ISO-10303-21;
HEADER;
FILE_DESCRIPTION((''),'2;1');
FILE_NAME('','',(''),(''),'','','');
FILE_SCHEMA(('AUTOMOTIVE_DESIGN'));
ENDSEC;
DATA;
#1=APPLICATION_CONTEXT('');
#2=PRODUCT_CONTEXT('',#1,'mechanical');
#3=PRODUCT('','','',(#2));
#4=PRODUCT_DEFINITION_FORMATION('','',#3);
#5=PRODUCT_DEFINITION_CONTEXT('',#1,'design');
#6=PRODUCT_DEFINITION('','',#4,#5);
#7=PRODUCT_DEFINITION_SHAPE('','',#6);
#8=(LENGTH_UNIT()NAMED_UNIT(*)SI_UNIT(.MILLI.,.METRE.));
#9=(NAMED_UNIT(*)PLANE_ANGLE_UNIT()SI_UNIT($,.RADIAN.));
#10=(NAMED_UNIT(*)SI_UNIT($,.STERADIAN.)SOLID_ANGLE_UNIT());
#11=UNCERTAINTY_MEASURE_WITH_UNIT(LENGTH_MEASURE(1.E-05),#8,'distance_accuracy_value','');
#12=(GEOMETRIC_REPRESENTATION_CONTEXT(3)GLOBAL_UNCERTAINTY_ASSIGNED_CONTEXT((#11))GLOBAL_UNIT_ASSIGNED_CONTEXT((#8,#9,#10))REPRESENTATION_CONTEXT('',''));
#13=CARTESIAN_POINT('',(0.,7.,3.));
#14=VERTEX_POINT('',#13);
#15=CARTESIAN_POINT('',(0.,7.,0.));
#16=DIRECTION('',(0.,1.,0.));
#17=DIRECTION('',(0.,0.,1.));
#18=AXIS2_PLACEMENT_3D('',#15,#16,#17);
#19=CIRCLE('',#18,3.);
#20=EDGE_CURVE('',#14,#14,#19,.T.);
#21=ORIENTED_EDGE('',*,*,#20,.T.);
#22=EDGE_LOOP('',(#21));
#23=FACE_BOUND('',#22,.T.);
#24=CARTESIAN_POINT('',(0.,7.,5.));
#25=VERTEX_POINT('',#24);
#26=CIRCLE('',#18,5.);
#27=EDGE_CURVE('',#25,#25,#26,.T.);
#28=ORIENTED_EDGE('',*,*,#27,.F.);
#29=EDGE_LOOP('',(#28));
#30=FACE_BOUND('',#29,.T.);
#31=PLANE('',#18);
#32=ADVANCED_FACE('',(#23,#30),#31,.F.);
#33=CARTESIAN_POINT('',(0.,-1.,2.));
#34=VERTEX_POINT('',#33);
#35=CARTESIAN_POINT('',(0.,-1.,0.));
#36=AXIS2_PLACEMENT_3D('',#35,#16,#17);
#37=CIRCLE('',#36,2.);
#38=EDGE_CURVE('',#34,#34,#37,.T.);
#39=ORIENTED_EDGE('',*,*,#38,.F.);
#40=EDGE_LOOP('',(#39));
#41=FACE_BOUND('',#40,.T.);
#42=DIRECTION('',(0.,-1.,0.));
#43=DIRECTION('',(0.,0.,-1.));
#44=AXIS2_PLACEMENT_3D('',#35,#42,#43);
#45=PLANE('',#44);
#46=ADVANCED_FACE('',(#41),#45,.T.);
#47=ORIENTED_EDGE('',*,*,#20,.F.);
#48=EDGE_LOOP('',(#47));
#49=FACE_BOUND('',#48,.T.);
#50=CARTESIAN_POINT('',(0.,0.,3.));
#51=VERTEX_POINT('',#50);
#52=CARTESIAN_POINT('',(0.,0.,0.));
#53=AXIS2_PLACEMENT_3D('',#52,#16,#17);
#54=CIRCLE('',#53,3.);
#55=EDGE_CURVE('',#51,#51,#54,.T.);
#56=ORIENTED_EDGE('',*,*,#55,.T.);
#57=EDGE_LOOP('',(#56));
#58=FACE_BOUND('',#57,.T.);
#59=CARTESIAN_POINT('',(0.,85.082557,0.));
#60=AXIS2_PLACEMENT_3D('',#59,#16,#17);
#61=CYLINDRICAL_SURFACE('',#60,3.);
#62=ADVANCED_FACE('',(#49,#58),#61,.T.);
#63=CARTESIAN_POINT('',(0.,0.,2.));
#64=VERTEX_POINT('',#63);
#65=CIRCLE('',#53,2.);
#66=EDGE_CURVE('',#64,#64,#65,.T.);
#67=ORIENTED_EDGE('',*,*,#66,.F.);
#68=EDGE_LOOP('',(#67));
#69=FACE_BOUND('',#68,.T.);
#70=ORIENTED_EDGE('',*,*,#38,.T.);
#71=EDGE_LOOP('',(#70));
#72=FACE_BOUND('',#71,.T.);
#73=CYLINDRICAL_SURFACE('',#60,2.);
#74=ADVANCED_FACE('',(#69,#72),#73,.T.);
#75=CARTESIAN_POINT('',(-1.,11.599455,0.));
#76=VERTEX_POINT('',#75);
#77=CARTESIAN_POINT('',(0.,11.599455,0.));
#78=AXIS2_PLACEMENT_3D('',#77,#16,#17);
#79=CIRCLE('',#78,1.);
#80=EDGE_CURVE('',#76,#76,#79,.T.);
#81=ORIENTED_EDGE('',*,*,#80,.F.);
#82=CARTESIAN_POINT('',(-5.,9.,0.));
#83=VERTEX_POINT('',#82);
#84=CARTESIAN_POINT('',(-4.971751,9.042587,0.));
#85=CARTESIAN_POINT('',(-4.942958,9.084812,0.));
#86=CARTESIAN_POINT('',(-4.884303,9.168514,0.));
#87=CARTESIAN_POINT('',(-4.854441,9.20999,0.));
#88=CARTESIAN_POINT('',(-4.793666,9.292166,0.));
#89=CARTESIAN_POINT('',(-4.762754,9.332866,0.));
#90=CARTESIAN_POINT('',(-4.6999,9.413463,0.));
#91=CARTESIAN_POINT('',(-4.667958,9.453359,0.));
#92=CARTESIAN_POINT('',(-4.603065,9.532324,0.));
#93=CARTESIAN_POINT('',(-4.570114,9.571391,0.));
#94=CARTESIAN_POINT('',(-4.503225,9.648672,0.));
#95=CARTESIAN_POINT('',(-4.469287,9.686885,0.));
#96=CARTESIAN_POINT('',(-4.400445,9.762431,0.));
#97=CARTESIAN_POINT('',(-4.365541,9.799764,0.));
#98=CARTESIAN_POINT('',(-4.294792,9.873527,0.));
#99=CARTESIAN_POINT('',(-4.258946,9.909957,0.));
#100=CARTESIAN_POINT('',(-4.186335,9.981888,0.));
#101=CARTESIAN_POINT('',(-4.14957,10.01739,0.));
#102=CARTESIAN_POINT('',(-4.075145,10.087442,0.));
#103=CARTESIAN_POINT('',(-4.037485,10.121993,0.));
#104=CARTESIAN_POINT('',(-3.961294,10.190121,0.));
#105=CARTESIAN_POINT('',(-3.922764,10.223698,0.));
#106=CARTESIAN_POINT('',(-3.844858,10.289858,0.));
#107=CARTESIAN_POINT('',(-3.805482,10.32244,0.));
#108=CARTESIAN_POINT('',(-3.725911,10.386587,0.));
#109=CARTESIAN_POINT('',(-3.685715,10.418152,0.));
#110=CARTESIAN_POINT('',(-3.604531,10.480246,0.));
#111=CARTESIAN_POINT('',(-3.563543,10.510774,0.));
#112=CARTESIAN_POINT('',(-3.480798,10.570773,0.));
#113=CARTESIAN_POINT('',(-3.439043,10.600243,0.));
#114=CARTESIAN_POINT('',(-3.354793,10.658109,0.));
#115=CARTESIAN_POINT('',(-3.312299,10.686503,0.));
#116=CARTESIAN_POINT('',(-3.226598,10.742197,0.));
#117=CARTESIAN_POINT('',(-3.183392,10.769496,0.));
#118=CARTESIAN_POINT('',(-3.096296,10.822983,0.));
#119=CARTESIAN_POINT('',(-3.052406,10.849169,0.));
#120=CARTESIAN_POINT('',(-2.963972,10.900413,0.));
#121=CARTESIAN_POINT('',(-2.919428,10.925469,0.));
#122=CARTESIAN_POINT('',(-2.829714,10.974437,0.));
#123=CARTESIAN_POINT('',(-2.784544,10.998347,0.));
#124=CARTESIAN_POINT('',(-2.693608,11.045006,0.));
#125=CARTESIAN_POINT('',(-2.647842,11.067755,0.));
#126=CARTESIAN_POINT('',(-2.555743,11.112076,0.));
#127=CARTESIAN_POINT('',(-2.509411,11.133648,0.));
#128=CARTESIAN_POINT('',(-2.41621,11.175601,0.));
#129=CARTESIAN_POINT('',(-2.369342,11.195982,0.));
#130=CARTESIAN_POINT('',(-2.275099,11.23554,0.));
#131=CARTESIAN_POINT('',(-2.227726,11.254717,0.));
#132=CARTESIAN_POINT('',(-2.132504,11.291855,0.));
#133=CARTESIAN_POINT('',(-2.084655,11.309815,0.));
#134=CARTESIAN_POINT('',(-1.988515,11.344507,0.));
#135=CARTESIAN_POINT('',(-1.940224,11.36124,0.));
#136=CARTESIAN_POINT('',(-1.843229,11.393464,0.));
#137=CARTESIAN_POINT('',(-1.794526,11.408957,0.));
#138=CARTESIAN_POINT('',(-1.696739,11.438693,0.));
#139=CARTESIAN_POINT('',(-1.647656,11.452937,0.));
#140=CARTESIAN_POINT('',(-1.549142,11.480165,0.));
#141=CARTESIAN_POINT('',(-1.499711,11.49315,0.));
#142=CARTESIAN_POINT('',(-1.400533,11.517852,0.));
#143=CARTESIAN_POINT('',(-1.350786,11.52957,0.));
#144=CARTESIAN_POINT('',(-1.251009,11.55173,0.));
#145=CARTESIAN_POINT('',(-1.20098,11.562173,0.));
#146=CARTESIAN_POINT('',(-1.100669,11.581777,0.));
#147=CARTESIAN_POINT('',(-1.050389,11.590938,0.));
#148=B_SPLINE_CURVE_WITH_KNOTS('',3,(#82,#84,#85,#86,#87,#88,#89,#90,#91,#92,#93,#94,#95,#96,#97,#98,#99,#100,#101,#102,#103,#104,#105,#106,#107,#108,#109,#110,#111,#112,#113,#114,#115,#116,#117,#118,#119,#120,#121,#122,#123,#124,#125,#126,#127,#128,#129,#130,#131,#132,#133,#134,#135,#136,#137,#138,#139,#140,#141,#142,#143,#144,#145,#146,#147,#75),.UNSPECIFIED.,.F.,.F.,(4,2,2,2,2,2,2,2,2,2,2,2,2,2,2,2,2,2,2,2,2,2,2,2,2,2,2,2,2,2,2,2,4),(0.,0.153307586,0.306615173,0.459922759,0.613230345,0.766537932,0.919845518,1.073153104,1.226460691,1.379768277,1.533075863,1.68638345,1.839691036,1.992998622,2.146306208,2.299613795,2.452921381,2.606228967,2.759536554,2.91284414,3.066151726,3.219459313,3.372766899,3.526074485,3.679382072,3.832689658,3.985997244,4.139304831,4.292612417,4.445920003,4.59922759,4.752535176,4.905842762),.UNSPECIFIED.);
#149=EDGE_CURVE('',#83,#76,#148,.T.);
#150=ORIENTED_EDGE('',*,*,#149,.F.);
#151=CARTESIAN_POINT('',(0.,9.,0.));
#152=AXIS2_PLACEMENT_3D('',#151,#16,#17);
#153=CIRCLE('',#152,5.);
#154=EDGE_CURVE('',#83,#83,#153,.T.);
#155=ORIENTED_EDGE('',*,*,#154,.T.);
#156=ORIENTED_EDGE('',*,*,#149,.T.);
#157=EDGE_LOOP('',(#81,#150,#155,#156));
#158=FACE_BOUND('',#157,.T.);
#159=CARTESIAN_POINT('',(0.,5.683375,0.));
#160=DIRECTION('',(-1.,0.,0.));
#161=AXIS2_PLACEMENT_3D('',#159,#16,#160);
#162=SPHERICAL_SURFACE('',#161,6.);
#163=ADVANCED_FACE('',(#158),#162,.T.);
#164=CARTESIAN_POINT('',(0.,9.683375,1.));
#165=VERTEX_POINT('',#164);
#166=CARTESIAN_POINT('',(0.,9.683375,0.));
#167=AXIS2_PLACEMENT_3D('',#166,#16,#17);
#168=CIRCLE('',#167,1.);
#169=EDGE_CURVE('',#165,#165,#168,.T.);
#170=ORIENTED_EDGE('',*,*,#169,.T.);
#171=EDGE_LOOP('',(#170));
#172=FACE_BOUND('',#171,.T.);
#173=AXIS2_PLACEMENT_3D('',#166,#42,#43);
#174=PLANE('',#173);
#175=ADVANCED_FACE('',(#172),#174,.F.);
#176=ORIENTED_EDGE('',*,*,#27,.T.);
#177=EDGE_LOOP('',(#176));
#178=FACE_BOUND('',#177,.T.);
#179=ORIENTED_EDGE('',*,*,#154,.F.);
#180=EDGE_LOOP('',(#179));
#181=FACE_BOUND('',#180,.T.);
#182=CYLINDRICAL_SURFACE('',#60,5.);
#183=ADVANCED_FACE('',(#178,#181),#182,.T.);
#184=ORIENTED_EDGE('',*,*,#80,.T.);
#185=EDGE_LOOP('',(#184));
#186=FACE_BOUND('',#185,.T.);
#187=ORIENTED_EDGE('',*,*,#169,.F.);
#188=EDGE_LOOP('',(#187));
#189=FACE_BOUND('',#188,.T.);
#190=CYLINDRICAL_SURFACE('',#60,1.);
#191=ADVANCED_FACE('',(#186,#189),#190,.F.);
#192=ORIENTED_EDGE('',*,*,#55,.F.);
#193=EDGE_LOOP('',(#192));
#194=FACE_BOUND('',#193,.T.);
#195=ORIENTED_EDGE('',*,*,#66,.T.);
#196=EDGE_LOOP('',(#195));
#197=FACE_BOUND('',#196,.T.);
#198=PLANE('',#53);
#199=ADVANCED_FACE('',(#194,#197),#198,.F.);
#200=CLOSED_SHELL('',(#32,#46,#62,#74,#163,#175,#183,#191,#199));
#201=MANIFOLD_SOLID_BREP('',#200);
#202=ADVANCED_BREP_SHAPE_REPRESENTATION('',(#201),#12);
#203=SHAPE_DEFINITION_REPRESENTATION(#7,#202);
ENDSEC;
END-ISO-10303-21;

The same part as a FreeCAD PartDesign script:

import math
import FreeCAD as App
import Part
import Sketcher
Q = App.Units.Quantity

doc = App.newDocument("Part")
body = doc.addObject("PartDesign::Body", "Body")

sketch1 = body.newObject("Sketcher::SketchObject", "Sketch")
sketch1.AttachmentSupport = (doc.getObject("XY_Plane"), [""])
sketch1.MapMode = "FlatFace"
sketch1.addGeometry([
    Part.LineSegment(App.Vector(-2, 0, 0), App.Vector(-2, -1, 0)),
    Part.LineSegment(App.Vector(-2, -1, 0), App.Vector(0, -1, 0)),
    Part.LineSegment(App.Vector(0, -1, 0), App.Vector(0, 9.7, 0)),
    Part.LineSegment(App.Vector(0, 9.7, 0), App.Vector(-1, 9.7, 0)),
    Part.LineSegment(App.Vector(-1, 9.7, 0), App.Vector(-1, 11.6, 0)),
    Part.ArcOfCircle(Part.Circle(App.Vector(0, 5.7, 0), App.Vector(0, 0, 1), 6), math.radians(100), math.radians(146)),
    Part.LineSegment(App.Vector(-5, 9, 0), App.Vector(-5, 7, 0)),
    Part.LineSegment(App.Vector(-5, 7, 0), App.Vector(-3, 7, 0)),
    Part.LineSegment(App.Vector(-3, 7, 0), App.Vector(-3, 0, 0)),
    Part.LineSegment(App.Vector(-3, 0, 0), App.Vector(-2, 0, 0)),
], False)
sketch1.addConstraint([
    Sketcher.Constraint("Coincident", 0, 2, 1, 1),
    Sketcher.Constraint("Coincident", 1, 2, 2, 1),
    Sketcher.Constraint("Coincident", 2, 2, 3, 1),
    Sketcher.Constraint("Coincident", 3, 2, 4, 1),
    Sketcher.Constraint("Coincident", 4, 2, 5, 1),
    Sketcher.Constraint("Coincident", 5, 2, 6, 1),
    Sketcher.Constraint("Coincident", 6, 2, 7, 1),
    Sketcher.Constraint("Coincident", 7, 2, 8, 1),
    Sketcher.Constraint("Coincident", 8, 2, 9, 1),
    Sketcher.Constraint("Coincident", 9, 2, 0, 1),
    Sketcher.Constraint("Vertical", 0),
    Sketcher.Constraint("Horizontal", 1),
    Sketcher.Constraint("Vertical", 2),
    Sketcher.Constraint("Horizontal", 3),
    Sketcher.Constraint("Vertical", 4),
    Sketcher.Constraint("Vertical", 6),
    Sketcher.Constraint("Horizontal", 7),
    Sketcher.Constraint("Vertical", 8),
    Sketcher.Constraint("Horizontal", 9),
    Sketcher.Constraint("PointOnObject", 5, 3, -2),
    Sketcher.Constraint("PointOnObject", 1, 2, -2),
    Sketcher.Constraint("PointOnObject", 8, 2, -1),
    Sketcher.Constraint("Equal", 1, 7),
    Sketcher.Constraint("Equal", 3, 9),
    Sketcher.Constraint("Equal", 9, 0),
    Sketcher.Constraint("Equal", 7, 6),
    Sketcher.Constraint("Radius", 5, Q("6 mm")),
    Sketcher.Constraint("DistanceX", 1, 1, 1, 2, Q("2 mm")),
    Sketcher.Constraint("DistanceX", 3, 2, 3, 1, Q("1 mm")),
    Sketcher.Constraint("DistanceY", 8, 2, 8, 1, Q("7 mm")),
    Sketcher.Constraint("DistanceY", 5, 3, 2, 2, Q("4 mm")),
])
revolution = body.newObject("PartDesign::Revolution", "Revolution")
revolution.Profile = sketch1
revolution.ReferenceAxis = (sketch1, ["V_Axis"])
revolution.Angle = 360

doc.recompute()
